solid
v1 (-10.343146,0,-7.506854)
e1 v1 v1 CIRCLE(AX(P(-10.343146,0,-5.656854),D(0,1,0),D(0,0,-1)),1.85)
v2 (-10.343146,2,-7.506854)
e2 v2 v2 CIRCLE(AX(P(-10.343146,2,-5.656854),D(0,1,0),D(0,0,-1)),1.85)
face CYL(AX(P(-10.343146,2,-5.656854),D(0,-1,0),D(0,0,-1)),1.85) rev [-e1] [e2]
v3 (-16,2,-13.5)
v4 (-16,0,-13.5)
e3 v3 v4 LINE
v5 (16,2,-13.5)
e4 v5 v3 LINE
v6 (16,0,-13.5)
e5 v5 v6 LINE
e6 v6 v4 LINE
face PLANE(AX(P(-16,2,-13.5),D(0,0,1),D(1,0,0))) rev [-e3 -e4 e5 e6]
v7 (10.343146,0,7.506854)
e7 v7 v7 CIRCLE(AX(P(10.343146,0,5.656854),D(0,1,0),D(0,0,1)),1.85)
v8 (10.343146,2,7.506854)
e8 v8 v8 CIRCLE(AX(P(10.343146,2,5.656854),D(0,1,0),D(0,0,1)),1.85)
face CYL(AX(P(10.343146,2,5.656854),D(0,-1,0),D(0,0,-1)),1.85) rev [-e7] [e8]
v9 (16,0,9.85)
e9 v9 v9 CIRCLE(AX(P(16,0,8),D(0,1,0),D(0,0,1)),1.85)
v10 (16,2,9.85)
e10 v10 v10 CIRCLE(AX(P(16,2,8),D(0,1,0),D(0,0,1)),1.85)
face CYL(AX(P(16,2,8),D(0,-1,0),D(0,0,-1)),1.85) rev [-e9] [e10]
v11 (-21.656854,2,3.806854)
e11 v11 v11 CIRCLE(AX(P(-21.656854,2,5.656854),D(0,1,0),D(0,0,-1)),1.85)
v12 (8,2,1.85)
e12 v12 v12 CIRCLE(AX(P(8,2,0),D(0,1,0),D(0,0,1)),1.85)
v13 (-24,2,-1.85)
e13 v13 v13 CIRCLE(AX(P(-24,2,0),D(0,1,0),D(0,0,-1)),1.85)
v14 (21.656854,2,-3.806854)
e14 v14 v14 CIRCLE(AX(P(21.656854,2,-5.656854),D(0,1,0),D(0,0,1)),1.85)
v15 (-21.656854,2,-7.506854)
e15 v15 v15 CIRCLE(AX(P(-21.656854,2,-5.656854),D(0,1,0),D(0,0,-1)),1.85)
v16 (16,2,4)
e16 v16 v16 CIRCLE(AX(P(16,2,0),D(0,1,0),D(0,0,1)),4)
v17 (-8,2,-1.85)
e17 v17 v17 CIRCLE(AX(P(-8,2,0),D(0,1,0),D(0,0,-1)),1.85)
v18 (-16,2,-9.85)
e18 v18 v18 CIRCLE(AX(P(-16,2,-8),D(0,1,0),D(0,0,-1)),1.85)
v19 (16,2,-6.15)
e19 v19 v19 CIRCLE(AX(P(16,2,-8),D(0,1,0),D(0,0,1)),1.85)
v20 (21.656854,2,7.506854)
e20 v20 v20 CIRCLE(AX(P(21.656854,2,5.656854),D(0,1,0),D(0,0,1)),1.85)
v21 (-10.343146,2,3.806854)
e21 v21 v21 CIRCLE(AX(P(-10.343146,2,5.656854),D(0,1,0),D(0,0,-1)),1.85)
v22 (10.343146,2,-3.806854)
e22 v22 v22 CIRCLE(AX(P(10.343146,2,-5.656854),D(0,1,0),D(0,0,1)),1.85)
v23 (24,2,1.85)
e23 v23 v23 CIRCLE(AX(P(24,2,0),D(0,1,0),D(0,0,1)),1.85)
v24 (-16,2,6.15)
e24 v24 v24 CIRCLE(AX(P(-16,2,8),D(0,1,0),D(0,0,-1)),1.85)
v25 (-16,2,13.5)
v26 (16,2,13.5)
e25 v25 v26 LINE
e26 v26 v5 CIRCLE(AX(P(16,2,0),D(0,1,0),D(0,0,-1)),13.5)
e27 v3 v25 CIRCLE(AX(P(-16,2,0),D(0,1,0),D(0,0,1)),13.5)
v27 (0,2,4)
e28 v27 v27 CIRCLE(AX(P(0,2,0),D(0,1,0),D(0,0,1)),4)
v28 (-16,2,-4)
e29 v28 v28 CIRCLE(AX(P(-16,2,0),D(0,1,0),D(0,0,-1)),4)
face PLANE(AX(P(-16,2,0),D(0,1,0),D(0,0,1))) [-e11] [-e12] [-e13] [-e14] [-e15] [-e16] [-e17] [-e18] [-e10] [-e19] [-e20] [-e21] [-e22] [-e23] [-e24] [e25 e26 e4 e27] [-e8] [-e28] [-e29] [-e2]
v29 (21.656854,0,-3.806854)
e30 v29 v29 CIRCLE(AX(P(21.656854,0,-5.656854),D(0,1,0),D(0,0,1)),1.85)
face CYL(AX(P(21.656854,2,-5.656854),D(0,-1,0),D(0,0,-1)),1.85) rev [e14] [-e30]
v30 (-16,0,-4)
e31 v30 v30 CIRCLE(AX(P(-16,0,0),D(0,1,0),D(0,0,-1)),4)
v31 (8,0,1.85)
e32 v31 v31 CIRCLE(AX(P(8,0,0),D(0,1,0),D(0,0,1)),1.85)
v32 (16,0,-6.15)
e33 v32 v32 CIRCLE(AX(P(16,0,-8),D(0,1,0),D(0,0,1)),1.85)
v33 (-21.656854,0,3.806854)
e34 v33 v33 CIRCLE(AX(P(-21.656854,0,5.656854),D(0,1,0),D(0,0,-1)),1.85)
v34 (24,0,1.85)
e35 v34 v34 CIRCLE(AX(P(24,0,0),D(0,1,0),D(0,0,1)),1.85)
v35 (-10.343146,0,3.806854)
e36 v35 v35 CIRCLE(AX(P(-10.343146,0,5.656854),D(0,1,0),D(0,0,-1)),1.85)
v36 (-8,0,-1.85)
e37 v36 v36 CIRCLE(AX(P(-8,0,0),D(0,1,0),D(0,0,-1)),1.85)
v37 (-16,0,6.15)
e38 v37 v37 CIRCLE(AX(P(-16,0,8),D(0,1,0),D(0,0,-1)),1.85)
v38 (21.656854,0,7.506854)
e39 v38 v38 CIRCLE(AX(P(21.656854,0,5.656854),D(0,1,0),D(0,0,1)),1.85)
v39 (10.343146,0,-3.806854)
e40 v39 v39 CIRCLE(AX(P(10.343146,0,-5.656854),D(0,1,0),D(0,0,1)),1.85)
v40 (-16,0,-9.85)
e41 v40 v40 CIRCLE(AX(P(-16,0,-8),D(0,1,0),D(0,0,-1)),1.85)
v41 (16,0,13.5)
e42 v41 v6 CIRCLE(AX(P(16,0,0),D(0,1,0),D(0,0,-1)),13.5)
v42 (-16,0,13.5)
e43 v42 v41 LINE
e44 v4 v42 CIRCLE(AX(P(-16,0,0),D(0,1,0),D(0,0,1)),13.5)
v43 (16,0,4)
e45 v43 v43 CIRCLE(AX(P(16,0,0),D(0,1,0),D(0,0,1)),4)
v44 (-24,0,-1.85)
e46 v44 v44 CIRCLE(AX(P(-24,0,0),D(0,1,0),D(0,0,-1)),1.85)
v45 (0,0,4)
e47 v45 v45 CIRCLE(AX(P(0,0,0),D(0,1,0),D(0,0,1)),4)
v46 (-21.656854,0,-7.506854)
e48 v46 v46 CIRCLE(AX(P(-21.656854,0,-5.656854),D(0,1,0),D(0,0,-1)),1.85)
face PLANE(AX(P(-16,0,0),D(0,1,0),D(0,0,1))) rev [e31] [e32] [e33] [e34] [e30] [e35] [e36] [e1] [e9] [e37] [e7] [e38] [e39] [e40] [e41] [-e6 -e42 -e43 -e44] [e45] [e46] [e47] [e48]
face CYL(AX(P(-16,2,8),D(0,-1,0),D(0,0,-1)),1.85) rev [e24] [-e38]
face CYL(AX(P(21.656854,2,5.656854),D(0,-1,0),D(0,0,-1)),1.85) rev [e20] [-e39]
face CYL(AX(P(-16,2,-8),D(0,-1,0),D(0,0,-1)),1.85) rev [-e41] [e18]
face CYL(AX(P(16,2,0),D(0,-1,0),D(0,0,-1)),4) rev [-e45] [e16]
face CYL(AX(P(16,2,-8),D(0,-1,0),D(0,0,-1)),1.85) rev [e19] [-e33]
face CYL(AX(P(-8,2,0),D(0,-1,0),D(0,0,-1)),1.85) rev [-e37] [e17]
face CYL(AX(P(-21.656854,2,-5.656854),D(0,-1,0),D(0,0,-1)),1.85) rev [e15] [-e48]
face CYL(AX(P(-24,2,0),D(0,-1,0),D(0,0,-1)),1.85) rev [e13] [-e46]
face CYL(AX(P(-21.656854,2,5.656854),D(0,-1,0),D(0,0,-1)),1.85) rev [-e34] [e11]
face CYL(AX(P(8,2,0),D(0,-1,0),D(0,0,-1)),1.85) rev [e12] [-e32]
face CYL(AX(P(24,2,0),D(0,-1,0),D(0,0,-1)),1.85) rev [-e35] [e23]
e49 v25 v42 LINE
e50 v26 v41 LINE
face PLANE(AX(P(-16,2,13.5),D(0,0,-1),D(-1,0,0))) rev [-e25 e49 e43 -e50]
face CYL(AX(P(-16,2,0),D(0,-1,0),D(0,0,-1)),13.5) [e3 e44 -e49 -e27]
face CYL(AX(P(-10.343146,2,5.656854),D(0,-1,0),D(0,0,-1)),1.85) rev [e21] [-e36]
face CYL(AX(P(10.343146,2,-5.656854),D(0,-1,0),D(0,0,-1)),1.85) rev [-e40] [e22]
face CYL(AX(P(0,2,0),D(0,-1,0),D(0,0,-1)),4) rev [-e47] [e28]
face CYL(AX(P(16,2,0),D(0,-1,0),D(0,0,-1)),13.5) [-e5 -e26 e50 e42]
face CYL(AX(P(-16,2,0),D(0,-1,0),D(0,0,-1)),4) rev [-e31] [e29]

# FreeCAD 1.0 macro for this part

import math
import FreeCAD as App
import Part
import Sketcher
from FreeCAD import Vector

doc = App.newDocument("Part")
body = doc.addObject("PartDesign::Body", "Body")

sketch1 = body.newObject("Sketcher::SketchObject", "Sketch")
sketch1.AttachmentSupport = (doc.getObject("XZ_Plane"), [""])
sketch1.MapMode = "FlatFace"
sketch1.addGeometry(Part.LineSegment(Vector(16, -13.5, 0), Vector(-16, -13.5, 0)), False)
sketch1.addGeometry(Part.ArcOfCircle(Part.Circle(Vector(-16, 0, 0), Vector(0, 0, 1), 13.5), math.radians(90), math.radians(270)), False)
sketch1.addGeometry(Part.LineSegment(Vector(-16, 13.5, 0), Vector(16, 13.5, 0)), False)
sketch1.addGeometry(Part.ArcOfCircle(Part.Circle(Vector(16, 0, 0), Vector(0, 0, 1), 13.5), math.radians(-90), math.radians(90)), False)
sketch1.addGeometry(Part.Circle(Vector(16, 8, 0), Vector(0, 0, 1), 1.9), False)
sketch1.addGeometry(Part.Circle(Vector(21.7, 5.7, 0), Vector(0, 0, 1), 1.9), False)
sketch1.addGeometry(Part.Circle(Vector(10.3, 5.7, 0), Vector(0, 0, 1), 1.9), False)
sketch1.addGeometry(Part.Circle(Vector(-10.3, 5.7, 0), Vector(0, 0, 1), 1.9), False)
sketch1.addGeometry(Part.Circle(Vector(-16, 8, 0), Vector(0, 0, 1), 1.9), False)
sketch1.addGeometry(Part.Circle(Vector(-21.7, 5.7, 0), Vector(0, 0, 1), 1.9), False)
sketch1.addGeometry(Part.Circle(Vector(24, 0, 0), Vector(0, 0, 1), 1.9), False)
sketch1.addGeometry(Part.Circle(Vector(16, 0, 0), Vector(0, 0, 1), 4), False)
sketch1.addGeometry(Part.Circle(Vector(8, 0, 0), Vector(0, 0, 1), 1.9), False)
sketch1.addGeometry(Part.Circle(Vector(21.7, -5.7, 0), Vector(0, 0, 1), 1.9), False)
sketch1.addGeometry(Part.Circle(Vector(16, -8, 0), Vector(0, 0, 1), 1.9), False)
sketch1.addGeometry(Part.Circle(Vector(10.3, -5.7, 0), Vector(0, 0, 1), 1.9), False)
sketch1.addGeometry(Part.Circle(Vector(0, 0, 0), Vector(0, 0, 1), 4), False)
sketch1.addGeometry(Part.Circle(Vector(-8, 0, 0), Vector(0, 0, 1), 1.9), False)
sketch1.addGeometry(Part.Circle(Vector(-16, 0, 0), Vector(0, 0, 1), 4), False)
sketch1.addGeometry(Part.Circle(Vector(-24, 0, 0), Vector(0, 0, 1), 1.9), False)
sketch1.addGeometry(Part.Circle(Vector(-10.3, -5.7, 0), Vector(0, 0, 1), 1.9), False)
sketch1.addGeometry(Part.Circle(Vector(-21.7, -5.7, 0), Vector(0, 0, 1), 1.9), False)
sketch1.addGeometry(Part.Circle(Vector(-16, -8, 0), Vector(0, 0, 1), 1.9), False)
sketch1.addConstraint(Sketcher.Constraint("Tangent", 0, 2, 1, 2))
sketch1.addConstraint(Sketcher.Constraint("Tangent", 1, 1, 2, 1))
sketch1.addConstraint(Sketcher.Constraint("Tangent", 2, 2, 3, 2))
sketch1.addConstraint(Sketcher.Constraint("Tangent", 3, 1, 0, 1))
sketch1.addConstraint(Sketcher.Constraint("Horizontal", 0))
sketch1.addConstraint(Sketcher.Constraint("Horizontal", 2))
sketch1.addConstraint(Sketcher.Constraint("Coincident", 16, 3, -1, 1))
sketch1.addConstraint(Sketcher.Constraint("Coincident", 11, 3, 3, 3))
sketch1.addConstraint(Sketcher.Constraint("Coincident", 18, 3, 1, 3))
sketch1.addConstraint(Sketcher.Constraint("Equal", 4, 5))
sketch1.addConstraint(Sketcher.Constraint("Equal", 5, 6))
sketch1.addConstraint(Sketcher.Constraint("Equal", 6, 7))
sketch1.addConstraint(Sketcher.Constraint("Equal", 7, 8))
sketch1.addConstraint(Sketcher.Constraint("Equal", 8, 9))
sketch1.addConstraint(Sketcher.Constraint("Equal", 9, 10))
sketch1.addConstraint(Sketcher.Constraint("Equal", 10, 12))
sketch1.addConstraint(Sketcher.Constraint("Equal", 12, 13))
sketch1.addConstraint(Sketcher.Constraint("Equal", 13, 14))
sketch1.addConstraint(Sketcher.Constraint("Equal", 14, 15))
sketch1.addConstraint(Sketcher.Constraint("Equal", 11, 16))
sketch1.addConstraint(Sketcher.Constraint("Equal", 15, 17))
sketch1.addConstraint(Sketcher.Constraint("Equal", 16, 18))
sketch1.addConstraint(Sketcher.Constraint("Equal", 17, 19))
sketch1.addConstraint(Sketcher.Constraint("Equal", 19, 20))
sketch1.addConstraint(Sketcher.Constraint("Equal", 20, 21))
sketch1.addConstraint(Sketcher.Constraint("Equal", 21, 22))
sketch1.addConstraint(Sketcher.Constraint("Symmetric", 1, 3, 3, 3, -1, 1))
sketch1.addConstraint(Sketcher.Constraint("Symmetric", 9, 3, 13, 3, -1, 1))
sketch1.addConstraint(Sketcher.Constraint("Symmetric", 8, 3, 14, 3, -1, 1))
sketch1.addConstraint(Sketcher.Constraint("Symmetric", 7, 3, 15, 3, -1, 1))
sketch1.addConstraint(Sketcher.Constraint("Symmetric", 12, 3, 17, 3, -1, 1))
sketch1.addConstraint(Sketcher.Constraint("Symmetric", 10, 3, 19, 3, -1, 1))
sketch1.addConstraint(Sketcher.Constraint("Symmetric", 6, 3, 20, 3, -1, 1))
sketch1.addConstraint(Sketcher.Constraint("Symmetric", 5, 3, 21, 3, -1, 1))
sketch1.addConstraint(Sketcher.Constraint("Symmetric", 4, 3, 22, 3, -1, 1))
sketch1.addConstraint(Sketcher.Constraint("Symmetric", 6, 3, 7, 3, -2))
sketch1.addConstraint(Sketcher.Constraint("Symmetric", 4, 3, 8, 3, -2))
sketch1.addConstraint(Sketcher.Constraint("Symmetric", 5, 3, 9, 3, -2))
sketch1.addConstraint(Sketcher.Constraint("PointOnObject", 10, 3, -1))
sketch1.addConstraint(Sketcher.Constraint("PointOnObject", 12, 3, -1))
sketch1.addConstraint(Sketcher.Constraint("Horizontal", 5, 3, 6, 3))
sketch1.addConstraint(Sketcher.Constraint("Vertical", 3, 3, 4, 3))
sketch1.addConstraint(Sketcher.Constraint("Diameter", 11, 8.0))
sketch1.addConstraint(Sketcher.Constraint("Diameter", 4, 3.7))
sketch1.addConstraint(Sketcher.Constraint("Radius", 1, 13.5))
sketch1.addConstraint(Sketcher.Constraint("DistanceX", 0, 2, 0, 1, 32.0))
sketch1.addConstraint(Sketcher.Constraint("DistanceY", -1, 1, 4, 3, 8.0))
sketch1.addConstraint(Sketcher.Constraint("DistanceX", -1, 1, 10, 3, 24.0))
sketch1.addConstraint(Sketcher.Constraint("DistanceX", -1, 1, 12, 3, 8.0))
sketch1.addConstraint(Sketcher.Constraint("DistanceX", 7, 3, 5, 3, 32.0))
sketch1.addConstraint(Sketcher.Constraint("DistanceX", 6, 3, 5, 3, 11.313708))
sketch1.addConstraint(Sketcher.Constraint("DistanceY", 13, 3, 5, 3, 11.313708))
pad1 = body.newObject("PartDesign::Pad", "Pad")
pad1.Profile = sketch1
pad1.Length = 2
pad1.Reversed = True

doc.recompute()
